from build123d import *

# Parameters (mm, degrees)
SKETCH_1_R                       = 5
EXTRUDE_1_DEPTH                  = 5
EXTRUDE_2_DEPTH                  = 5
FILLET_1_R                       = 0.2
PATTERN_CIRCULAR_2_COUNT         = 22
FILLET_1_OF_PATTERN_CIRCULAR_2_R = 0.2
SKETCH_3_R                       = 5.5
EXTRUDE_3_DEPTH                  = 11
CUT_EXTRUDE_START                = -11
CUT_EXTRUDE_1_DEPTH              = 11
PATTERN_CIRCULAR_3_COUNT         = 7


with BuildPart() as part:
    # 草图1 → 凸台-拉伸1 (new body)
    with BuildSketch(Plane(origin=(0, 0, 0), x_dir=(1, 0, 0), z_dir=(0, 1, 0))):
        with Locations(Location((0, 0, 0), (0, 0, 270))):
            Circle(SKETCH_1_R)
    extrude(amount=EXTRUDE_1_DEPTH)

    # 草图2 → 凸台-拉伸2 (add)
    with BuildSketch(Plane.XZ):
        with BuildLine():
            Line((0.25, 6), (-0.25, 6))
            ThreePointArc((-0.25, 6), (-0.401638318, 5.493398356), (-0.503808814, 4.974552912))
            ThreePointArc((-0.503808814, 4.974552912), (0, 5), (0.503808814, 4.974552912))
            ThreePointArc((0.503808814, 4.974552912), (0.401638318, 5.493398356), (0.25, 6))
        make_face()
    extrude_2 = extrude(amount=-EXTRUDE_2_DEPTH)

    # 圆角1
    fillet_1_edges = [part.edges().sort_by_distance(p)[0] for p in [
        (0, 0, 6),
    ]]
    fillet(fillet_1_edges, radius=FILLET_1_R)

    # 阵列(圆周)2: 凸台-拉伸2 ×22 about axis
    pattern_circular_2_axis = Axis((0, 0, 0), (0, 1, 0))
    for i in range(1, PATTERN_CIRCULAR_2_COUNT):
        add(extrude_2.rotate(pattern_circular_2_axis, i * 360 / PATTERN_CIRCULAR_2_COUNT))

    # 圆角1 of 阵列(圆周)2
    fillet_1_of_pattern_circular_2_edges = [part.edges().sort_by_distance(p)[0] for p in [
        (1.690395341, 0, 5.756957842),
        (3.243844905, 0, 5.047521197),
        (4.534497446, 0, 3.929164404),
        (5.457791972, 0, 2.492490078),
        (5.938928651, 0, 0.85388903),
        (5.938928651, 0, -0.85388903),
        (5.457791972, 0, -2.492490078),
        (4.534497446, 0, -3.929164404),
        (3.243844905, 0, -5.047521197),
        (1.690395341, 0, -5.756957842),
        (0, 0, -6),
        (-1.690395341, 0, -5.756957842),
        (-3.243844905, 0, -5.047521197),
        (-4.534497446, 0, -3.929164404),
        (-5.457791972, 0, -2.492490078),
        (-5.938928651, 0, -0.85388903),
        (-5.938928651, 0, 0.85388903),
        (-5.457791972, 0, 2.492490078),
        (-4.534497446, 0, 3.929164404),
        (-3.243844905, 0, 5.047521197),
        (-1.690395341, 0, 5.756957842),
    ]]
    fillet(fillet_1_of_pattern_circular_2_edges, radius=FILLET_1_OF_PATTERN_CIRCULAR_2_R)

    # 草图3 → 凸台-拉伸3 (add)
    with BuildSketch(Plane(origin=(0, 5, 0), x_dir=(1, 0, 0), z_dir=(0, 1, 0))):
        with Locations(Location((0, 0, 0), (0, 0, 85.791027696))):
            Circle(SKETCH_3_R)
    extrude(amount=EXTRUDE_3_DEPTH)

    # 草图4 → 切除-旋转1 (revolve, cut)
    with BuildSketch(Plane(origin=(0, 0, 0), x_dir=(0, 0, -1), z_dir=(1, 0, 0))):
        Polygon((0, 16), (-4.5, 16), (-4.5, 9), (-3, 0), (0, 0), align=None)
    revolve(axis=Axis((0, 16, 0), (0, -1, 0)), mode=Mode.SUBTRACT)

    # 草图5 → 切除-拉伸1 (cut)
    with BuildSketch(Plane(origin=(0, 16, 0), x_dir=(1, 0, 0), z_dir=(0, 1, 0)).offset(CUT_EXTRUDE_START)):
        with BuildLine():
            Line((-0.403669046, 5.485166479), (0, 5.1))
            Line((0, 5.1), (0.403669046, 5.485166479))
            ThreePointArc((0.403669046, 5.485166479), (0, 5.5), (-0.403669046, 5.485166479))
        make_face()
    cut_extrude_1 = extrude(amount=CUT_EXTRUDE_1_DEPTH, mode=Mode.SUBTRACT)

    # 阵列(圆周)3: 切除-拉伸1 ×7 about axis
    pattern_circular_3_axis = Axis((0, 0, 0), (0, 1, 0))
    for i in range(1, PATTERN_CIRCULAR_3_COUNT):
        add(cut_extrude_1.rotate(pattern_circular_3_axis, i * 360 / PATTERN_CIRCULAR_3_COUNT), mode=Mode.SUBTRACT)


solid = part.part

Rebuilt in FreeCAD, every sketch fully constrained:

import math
import FreeCAD as App
import Part
import Sketcher

V = App.Vector


def edges_at(feature, points):
    """Names of the edges that pass closest to the given points."""
    edges = feature.Shape.Edges
    near = lambda p: min(range(len(edges)), key=lambda i: edges[i].distToShape(Part.Vertex(*p))[0])
    return sorted({f"Edge{near(p) + 1}" for p in points})

doc = App.newDocument("Part")
body = doc.addObject("PartDesign::Body", "Body")

# Sketch on XZ plane
sketch1 = doc.addObject("Sketcher::SketchObject", "Sketch")
body.addObject(sketch1)
sketch1.AttachmentSupport = (doc.XZ_Plane, [""])
sketch1.MapMode = "FlatFace"
sketch1.addGeometry(Part.Circle(V(0, 0, 0), V(0, 0, 1), 5), False)
sketch1.addConstraint(Sketcher.Constraint("Coincident", 0, 3, -1, 1))
sketch1.addConstraint(Sketcher.Constraint("Diameter", 0, 10.0))
pad1 = doc.addObject("PartDesign::Pad", "Pad")
body.addObject(pad1)
pad1.Profile = sketch1
pad1.Length = 5
pad1.Reversed = True

# Sketch on XZ plane
sketch2 = doc.addObject("Sketcher::SketchObject", "Sketch001")
body.addObject(sketch2)
sketch2.AttachmentSupport = (doc.XZ_Plane, [""])
sketch2.MapMode = "FlatFace"
sketch2.addGeometry(Part.LineSegment(V(0.2, 6, 0), V(-0.2, 6, 0)), False)
sketch2.addGeometry(Part.ArcOfCircle(Part.Circle(V(4.9, 4.2, 0), V(0, 0, 1), 5.5), math.radians(160.57), math.radians(171.62)), False)
sketch2.addGeometry(Part.ArcOfCircle(Part.Circle(V(0, 0, 0), V(0, 0, 1), 5), math.radians(84.22), math.radians(95.78)), False)
sketch2.addGeometry(Part.ArcOfCircle(Part.Circle(V(-4.9, 4.2, 0), V(0, 0, 1), 5.5), math.radians(8.38), math.radians(19.43)), False)
sketch2.addConstraint(Sketcher.Constraint("Coincident", 0, 2, 1, 1))
sketch2.addConstraint(Sketcher.Constraint("Coincident", 1, 2, 2, 2))
sketch2.addConstraint(Sketcher.Constraint("Coincident", 2, 1, 3, 1))
sketch2.addConstraint(Sketcher.Constraint("Coincident", 3, 2, 0, 1))
sketch2.addConstraint(Sketcher.Constraint("Horizontal", 0))
sketch2.addConstraint(Sketcher.Constraint("Coincident", 2, 3, -1, 1))
sketch2.addConstraint(Sketcher.Constraint("Equal", 1, 3))
sketch2.addConstraint(Sketcher.Constraint("Symmetric", 1, 3, 3, 3, -2))
sketch2.addConstraint(Sketcher.Constraint("Radius", 2, 5.0))
sketch2.addConstraint(Sketcher.Constraint("DistanceX", 0, 2, 0, 1, 0.5))
sketch2.addConstraint(Sketcher.Constraint("DistanceY", -1, 1, 0, 2, 6.0))
sketch2.addConstraint(Sketcher.Constraint("Radius", 1, 5.487372))
sketch2.addConstraint(Sketcher.Constraint("DistanceX", 3, 3, 1, 3, 9.85))
pad2 = doc.addObject("PartDesign::Pad", "Pad001")
body.addObject(pad2)
pad2.Profile = sketch2
pad2.Length = 5
pad2.Reversed = True
doc.recompute()

fillet = doc.addObject("PartDesign::Fillet", "Fillet")
body.addObject(fillet)
fillet.Base = (pad2, edges_at(pad2, [(0, 0, 6)]))
fillet.Radius = 0.2
doc.recompute()

polarpattern = doc.addObject("PartDesign::PolarPattern", "PolarPattern")
body.addObject(polarpattern)
polarpattern.Originals = [pad2]
polarpattern.Axis = (doc.Y_Axis, [""])
polarpattern.Angle = 360
polarpattern.Occurrences = 22
body.Tip = polarpattern
doc.recompute()

fillet2 = doc.addObject("PartDesign::Fillet", "Fillet001")
body.addObject(fillet2)
fillet2.Base = (polarpattern, edges_at(polarpattern, [
    (1.69, 0, 5.757),
    (3.244, 0, 5.048),
    (4.534, 0, 3.929),
    (5.458, 0, 2.492),
    (5.939, 0, 0.854),
    (5.939, 0, -0.854),
    (5.458, 0, -2.492),
    (4.534, 0, -3.929),
    (3.244, 0, -5.048),
    (1.69, 0, -5.757),
    (0, 0, -6),
    (-1.69, 0, -5.757),
    (-3.244, 0, -5.048),
    (-4.534, 0, -3.929),
    (-5.458, 0, -2.492),
    (-5.939, 0, -0.854),
    (-5.939, 0, 0.854),
    (-5.458, 0, 2.492),
    (-4.534, 0, 3.929),
    (-3.244, 0, 5.048),
    (-1.69, 0, 5.757),
]))
fillet2.Radius = 0.2

# Sketch on XZ plane
sketch3 = doc.addObject("Sketcher::SketchObject", "Sketch002")
body.addObject(sketch3)
sketch3.AttachmentSupport = (doc.XZ_Plane, [""])
sketch3.MapMode = "FlatFace"
sketch3.AttachmentOffset = App.Placement(V(0, 0, -5), App.Rotation())
sketch3.addGeometry(Part.Circle(V(0, 0, 0), V(0, 0, 1), 6), False)
sketch3.addConstraint(Sketcher.Constraint("Coincident", 0, 3, -1, 1))
sketch3.addConstraint(Sketcher.Constraint("Diameter", 0, 11.0))
pad3 = doc.addObject("PartDesign::Pad", "Pad002")
body.addObject(pad3)
pad3.Profile = sketch3
pad3.Length = 11
pad3.Reversed = True

# Sketch on YZ plane
sketch4 = doc.addObject("Sketcher::SketchObject", "Sketch003")
body.addObject(sketch4)
sketch4.AttachmentSupport = (doc.YZ_Plane, [""])
sketch4.MapMode = "FlatFace"
sketch4.addGeometry(Part.LineSegment(V(16, 0, 0), V(16, 4.5, 0)), False)
sketch4.addGeometry(Part.LineSegment(V(16, 4.5, 0), V(9, 4.5, 0)), False)
sketch4.addGeometry(Part.LineSegment(V(9, 4.5, 0), V(0, 3, 0)), False)
sketch4.addGeometry(Part.LineSegment(V(0, 3, 0), V(0, 0, 0)), False)
sketch4.addGeometry(Part.LineSegment(V(0, 0, 0), V(16, 0, 0)), False)
sketch4.addConstraint(Sketcher.Constraint("Coincident", 0, 2, 1, 1))
sketch4.addConstraint(Sketcher.Constraint("Coincident", 1, 2, 2, 1))
sketch4.addConstraint(Sketcher.Constraint("Coincident", 2, 2, 3, 1))
sketch4.addConstraint(Sketcher.Constraint("Coincident", 3, 2, 4, 1))
sketch4.addConstraint(Sketcher.Constraint("Coincident", 4, 2, 0, 1))
sketch4.addConstraint(Sketcher.Constraint("Vertical", 0))
sketch4.addConstraint(Sketcher.Constraint("Horizontal", 1))
sketch4.addConstraint(Sketcher.Constraint("Vertical", 3))
sketch4.addConstraint(Sketcher.Constraint("Horizontal", 4))
sketch4.addConstraint(Sketcher.Constraint("Coincident", 3, 2, -1, 1))
sketch4.addConstraint(Sketcher.Constraint("DistanceX", 1, 2, 1, 1, 7.0))
sketch4.addConstraint(Sketcher.Constraint("DistanceX", 4, 1, 4, 2, 16.0))
sketch4.addConstraint(Sketcher.Constraint("DistanceY", 3, 2, 3, 1, 3.0))
sketch4.addConstraint(Sketcher.Constraint("DistanceY", 0, 1, 0, 2, 4.5))
groove = doc.addObject("PartDesign::Groove", "Groove")
body.addObject(groove)
groove.Profile = sketch4
groove.ReferenceAxis = (sketch4, ["H_Axis"])
groove.Angle = 360

# Sketch on XZ plane
sketch5 = doc.addObject("Sketcher::SketchObject", "Sketch004")
body.addObject(sketch5)
sketch5.AttachmentSupport = (doc.XZ_Plane, [""])
sketch5.MapMode = "FlatFace"
sketch5.AttachmentOffset = App.Placement(V(0, 0, -5), App.Rotation())
sketch5.addGeometry(Part.LineSegment(V(-0.4, -5.5, 0), V(0, -5.1, 0)), False)
sketch5.addGeometry(Part.LineSegment(V(0, -5.1, 0), V(0.4, -5.5, 0)), False)
sketch5.addGeometry(Part.ArcOfCircle(Part.Circle(V(0, 0, 0), V(0, 0, 1), 5.5), math.radians(-94.21), math.radians(-85.79)), False)
sketch5.addConstraint(Sketcher.Constraint("Coincident", 0, 2, 1, 1))
sketch5.addConstraint(Sketcher.Constraint("Coincident", 1, 2, 2, 2))
sketch5.addConstraint(Sketcher.Constraint("Coincident", 2, 1, 0, 1))
sketch5.addConstraint(Sketcher.Constraint("Coincident", 2, 3, -1, 1))
sketch5.addConstraint(Sketcher.Constraint("PointOnObject", 0, 2, -2))
sketch5.addConstraint(Sketcher.Constraint("Horizontal", 1, 2, 2, 1))
sketch5.addConstraint(Sketcher.Constraint("Radius", 2, 5.5))
sketch5.addConstraint(Sketcher.Constraint("DistanceY", 0, 2, -1, 1, 5.1))
sketch5.addConstraint(Sketcher.Constraint("DistanceX", -1, 1, 1, 2, 0.403669))
pocket1 = doc.addObject("PartDesign::Pocket", "Pocket")
body.addObject(pocket1)
pocket1.Profile = sketch5
pocket1.Length = 11
doc.recompute()

polarpattern2 = doc.addObject("PartDesign::PolarPattern", "PolarPattern001")
body.addObject(polarpattern2)
polarpattern2.Originals = [pocket1]
polarpattern2.Axis = (doc.Y_Axis, [""])
polarpattern2.Angle = 360
polarpattern2.Occurrences = 7
body.Tip = polarpattern2

doc.recompute()
